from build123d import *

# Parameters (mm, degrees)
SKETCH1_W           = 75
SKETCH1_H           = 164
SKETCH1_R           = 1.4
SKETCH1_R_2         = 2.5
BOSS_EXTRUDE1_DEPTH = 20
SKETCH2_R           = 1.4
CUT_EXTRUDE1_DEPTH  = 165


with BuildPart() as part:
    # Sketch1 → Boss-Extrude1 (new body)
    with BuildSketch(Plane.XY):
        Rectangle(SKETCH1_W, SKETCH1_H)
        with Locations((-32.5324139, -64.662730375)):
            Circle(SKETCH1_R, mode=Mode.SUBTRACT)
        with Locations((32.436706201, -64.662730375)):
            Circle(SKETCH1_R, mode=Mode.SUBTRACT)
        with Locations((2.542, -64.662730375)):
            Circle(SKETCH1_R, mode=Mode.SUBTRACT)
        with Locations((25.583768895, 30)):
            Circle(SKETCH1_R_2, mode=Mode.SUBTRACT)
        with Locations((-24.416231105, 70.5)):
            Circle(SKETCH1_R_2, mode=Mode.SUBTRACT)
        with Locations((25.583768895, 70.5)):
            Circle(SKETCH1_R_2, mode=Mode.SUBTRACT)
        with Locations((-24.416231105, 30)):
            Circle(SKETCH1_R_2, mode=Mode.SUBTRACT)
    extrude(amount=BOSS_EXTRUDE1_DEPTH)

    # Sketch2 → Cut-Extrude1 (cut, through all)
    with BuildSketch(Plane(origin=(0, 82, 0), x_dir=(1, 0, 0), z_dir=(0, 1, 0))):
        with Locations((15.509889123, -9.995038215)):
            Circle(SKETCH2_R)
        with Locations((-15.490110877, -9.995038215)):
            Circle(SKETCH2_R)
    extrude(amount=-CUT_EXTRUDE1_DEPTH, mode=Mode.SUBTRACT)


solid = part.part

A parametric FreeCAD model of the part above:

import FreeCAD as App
import Part
import Sketcher

V = App.Vector
Q = App.Units.Quantity

doc = App.newDocument("Part")
body = doc.addObject("PartDesign::Body", "Body")

sketch1 = doc.addObject("Sketcher::SketchObject", "Sketch")
body.addObject(sketch1)
sketch1.AttachmentSupport = (doc.XY_Plane, [""])
sketch1.MapMode = "FlatFace"
sketch1.addGeometry([
    Part.LineSegment(V(-37.5, 82, 0), V(-37.5, -82, 0)),
    Part.LineSegment(V(-37.5, -82, 0), V(37.5, -82, 0)),
    Part.LineSegment(V(37.5, -82, 0), V(37.5, 82, 0)),
    Part.LineSegment(V(37.5, 82, 0), V(-37.5, 82, 0)),
    Part.Circle(V(-32.5, -64.7, 0), V(0, 0, 1), 1.4),
    Part.Circle(V(2.5, -64.7, 0), V(0, 0, 1), 1.4),
    Part.Circle(V(32.4, -64.7, 0), V(0, 0, 1), 1.4),
    Part.Circle(V(-24.4, 30, 0), V(0, 0, 1), 2.5),
    Part.Circle(V(-24.4, 70.5, 0), V(0, 0, 1), 2.5),
    Part.Circle(V(25.6, 30, 0), V(0, 0, 1), 2.5),
    Part.Circle(V(25.6, 70.5, 0), V(0, 0, 1), 2.5),
], False)
sketch1.addConstraint([
    Sketcher.Constraint("Coincident", 0, 2, 1, 1),
    Sketcher.Constraint("Coincident", 1, 2, 2, 1),
    Sketcher.Constraint("Coincident", 2, 2, 3, 1),
    Sketcher.Constraint("Coincident", 3, 2, 0, 1),
    Sketcher.Constraint("Vertical", 0),
    Sketcher.Constraint("Horizontal", 1),
    Sketcher.Constraint("Vertical", 2),
    Sketcher.Constraint("Horizontal", 3),
    Sketcher.Constraint("Equal", 4, 5),
    Sketcher.Constraint("Equal", 5, 6),
    Sketcher.Constraint("Equal", 7, 8),
    Sketcher.Constraint("Equal", 8, 9),
    Sketcher.Constraint("Equal", 9, 10),
    Sketcher.Constraint("Symmetric", 0, 2, 2, 2, -1, 1),
    Sketcher.Constraint("Horizontal", 4, 3, 5, 3),
    Sketcher.Constraint("Horizontal", 5, 3, 6, 3),
    Sketcher.Constraint("Horizontal", 7, 3, 9, 3),
    Sketcher.Constraint("Horizontal", 8, 3, 10, 3),
    Sketcher.Constraint("Vertical", 7, 3, 8, 3),
    Sketcher.Constraint("Vertical", 9, 3, 10, 3),
    Sketcher.Constraint("Diameter", 7, Q("5 mm")),
    Sketcher.Constraint("Diameter", 4, Q("2.8 mm")),
    Sketcher.Constraint("DistanceX", 1, 1, 1, 2, Q("75 mm")),
    Sketcher.Constraint("DistanceY", 0, 2, 0, 1, Q("164 mm")),
    Sketcher.Constraint("DistanceY", -1, 1, 7, 3, Q("30 mm")),
    Sketcher.Constraint("DistanceX", 7, 3, 9, 3, Q("50 mm")),
    Sketcher.Constraint("DistanceY", -1, 1, 8, 3, Q("70.5 mm")),
    Sketcher.Constraint("DistanceX", -1, 1, 5, 3, Q("2.542 mm")),
    Sketcher.Constraint("DistanceY", 4, 3, -1, 1, Q("64.66273 mm")),
    Sketcher.Constraint("DistanceX", 7, 3, -1, 1, Q("24.416231 mm")),
    Sketcher.Constraint("DistanceX", 4, 3, 6, 3, Q("64.96912 mm")),
    Sketcher.Constraint("DistanceX", 4, 3, -1, 1, Q("32.532414 mm")),
])
pad1 = doc.addObject("PartDesign::Pad", "Pad")
body.addObject(pad1)
pad1.Profile = sketch1
pad1.Length = 20

sketch2 = doc.addObject("Sketcher::SketchObject", "Sketch001")
body.addObject(sketch2)
sketch2.AttachmentSupport = (doc.XZ_Plane, [""])
sketch2.MapMode = "FlatFace"
sketch2.AttachmentOffset = App.Placement(V(0, 0, -82), App.Rotation())
sketch2.addGeometry([
    Part.Circle(V(15.5, 10, 0), V(0, 0, 1), 1.4),
    Part.Circle(V(-15.5, 10, 0), V(0, 0, 1), 1.4),
], False)
sketch2.addConstraint([
    Sketcher.Constraint("Equal", 0, 1),
    Sketcher.Constraint("Horizontal", 0, 3, 1, 3),
    Sketcher.Constraint("Diameter", 0, Q("2.8 mm")),
    Sketcher.Constraint("DistanceX", 1, 3, 0, 3, Q("31 mm")),
    Sketcher.Constraint("DistanceX", -1, 1, 0, 3, Q("15.509889 mm")),
    Sketcher.Constraint("DistanceY", -1, 1, 0, 3, Q("9.995038 mm")),
])
pocket1 = doc.addObject("PartDesign::Pocket", "Pocket")
body.addObject(pocket1)
pocket1.Profile = sketch2
pocket1.Type = "ThroughAll"
pocket1.Reversed = True

doc.recompute()
